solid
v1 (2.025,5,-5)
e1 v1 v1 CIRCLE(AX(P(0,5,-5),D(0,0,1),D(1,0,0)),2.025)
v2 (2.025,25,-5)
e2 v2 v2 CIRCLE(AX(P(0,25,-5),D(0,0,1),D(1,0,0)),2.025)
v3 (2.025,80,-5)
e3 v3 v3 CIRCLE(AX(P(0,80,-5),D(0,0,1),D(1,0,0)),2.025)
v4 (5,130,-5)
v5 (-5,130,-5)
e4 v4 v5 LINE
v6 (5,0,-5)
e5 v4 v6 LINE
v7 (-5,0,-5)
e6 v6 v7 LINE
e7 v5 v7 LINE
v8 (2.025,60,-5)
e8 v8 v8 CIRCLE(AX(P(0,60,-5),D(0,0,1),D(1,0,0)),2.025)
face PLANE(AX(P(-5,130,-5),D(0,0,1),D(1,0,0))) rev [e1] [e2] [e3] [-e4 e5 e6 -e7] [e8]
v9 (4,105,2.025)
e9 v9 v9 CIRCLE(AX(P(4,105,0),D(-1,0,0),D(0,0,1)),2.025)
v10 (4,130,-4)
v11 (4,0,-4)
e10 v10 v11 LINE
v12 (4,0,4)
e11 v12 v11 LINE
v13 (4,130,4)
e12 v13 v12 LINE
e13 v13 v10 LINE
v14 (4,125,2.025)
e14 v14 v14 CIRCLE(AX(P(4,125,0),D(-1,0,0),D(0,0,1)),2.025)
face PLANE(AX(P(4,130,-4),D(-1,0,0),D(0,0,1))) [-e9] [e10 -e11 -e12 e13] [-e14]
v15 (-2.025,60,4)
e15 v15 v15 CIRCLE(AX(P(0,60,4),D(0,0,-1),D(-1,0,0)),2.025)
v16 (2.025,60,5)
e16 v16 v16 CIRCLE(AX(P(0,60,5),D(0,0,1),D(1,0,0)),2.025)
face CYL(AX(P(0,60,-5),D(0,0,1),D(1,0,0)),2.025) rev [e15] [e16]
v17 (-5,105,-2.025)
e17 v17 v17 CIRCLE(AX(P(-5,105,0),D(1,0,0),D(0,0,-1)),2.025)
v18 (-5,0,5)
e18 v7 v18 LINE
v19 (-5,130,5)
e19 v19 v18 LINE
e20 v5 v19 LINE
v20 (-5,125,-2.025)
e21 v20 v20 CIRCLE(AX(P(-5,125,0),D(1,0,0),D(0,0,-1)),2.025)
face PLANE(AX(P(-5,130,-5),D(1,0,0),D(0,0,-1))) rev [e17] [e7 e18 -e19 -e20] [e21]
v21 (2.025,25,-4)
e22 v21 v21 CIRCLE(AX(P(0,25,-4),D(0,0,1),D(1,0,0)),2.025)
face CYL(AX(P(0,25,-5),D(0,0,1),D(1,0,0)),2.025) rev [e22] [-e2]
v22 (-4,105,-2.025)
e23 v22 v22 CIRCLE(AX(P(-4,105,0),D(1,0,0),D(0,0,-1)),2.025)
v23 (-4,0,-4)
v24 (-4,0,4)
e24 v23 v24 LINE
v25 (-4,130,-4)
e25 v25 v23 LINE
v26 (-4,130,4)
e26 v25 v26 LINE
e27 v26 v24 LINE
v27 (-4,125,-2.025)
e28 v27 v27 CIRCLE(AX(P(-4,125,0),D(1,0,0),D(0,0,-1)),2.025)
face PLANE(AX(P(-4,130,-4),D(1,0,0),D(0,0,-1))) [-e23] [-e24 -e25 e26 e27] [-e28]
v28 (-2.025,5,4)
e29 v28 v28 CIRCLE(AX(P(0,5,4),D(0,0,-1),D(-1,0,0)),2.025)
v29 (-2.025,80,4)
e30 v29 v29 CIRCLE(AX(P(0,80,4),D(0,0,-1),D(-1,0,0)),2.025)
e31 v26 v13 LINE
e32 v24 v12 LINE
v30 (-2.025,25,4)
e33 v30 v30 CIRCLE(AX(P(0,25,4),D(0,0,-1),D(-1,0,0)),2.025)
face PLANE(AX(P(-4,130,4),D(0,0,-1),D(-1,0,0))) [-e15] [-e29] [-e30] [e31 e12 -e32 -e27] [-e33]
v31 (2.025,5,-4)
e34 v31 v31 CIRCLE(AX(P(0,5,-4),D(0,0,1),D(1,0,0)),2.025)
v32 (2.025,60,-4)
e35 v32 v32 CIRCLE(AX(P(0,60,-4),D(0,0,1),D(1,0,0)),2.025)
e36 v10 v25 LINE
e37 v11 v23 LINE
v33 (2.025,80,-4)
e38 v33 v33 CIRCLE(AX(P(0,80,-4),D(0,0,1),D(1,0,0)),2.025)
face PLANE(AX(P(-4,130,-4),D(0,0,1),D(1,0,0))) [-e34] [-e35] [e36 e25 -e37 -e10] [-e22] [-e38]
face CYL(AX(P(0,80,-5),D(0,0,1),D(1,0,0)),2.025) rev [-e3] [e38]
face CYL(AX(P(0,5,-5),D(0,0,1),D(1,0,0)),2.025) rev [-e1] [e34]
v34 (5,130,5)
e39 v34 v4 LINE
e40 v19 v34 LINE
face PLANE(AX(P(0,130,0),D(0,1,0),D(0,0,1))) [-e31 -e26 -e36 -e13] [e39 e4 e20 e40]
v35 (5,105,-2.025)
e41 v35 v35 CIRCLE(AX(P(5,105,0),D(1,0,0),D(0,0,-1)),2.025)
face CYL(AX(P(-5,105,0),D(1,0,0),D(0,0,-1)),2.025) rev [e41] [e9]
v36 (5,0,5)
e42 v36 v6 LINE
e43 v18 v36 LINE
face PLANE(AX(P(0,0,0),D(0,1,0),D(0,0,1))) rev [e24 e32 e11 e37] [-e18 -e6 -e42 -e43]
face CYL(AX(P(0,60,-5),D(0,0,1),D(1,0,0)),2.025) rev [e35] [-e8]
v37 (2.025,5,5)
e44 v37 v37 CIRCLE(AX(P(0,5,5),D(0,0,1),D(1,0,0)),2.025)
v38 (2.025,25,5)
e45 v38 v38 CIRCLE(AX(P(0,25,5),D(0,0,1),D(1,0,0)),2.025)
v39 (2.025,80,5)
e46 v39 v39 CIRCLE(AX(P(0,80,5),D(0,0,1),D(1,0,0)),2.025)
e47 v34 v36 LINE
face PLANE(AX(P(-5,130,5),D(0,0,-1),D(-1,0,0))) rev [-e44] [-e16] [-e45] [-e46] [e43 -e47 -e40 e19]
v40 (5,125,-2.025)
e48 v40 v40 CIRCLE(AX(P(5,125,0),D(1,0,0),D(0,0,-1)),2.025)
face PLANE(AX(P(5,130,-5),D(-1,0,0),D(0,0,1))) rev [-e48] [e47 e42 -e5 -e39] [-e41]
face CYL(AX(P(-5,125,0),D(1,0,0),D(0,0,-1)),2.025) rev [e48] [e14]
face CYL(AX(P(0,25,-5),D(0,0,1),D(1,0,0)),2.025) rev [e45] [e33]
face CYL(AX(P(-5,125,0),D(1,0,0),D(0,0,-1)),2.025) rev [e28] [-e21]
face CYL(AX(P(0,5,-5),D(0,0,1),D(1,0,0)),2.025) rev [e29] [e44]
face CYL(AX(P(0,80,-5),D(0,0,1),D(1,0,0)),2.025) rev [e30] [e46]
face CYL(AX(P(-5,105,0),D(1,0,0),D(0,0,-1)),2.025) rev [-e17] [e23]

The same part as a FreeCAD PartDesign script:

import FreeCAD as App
import Part
import Sketcher

V = App.Vector
Q = App.Units.Quantity


def add_polygon(sketch, points):
    """Adds a closed chain of lines whose ends are joined by coincident constraints."""
    first, n = sketch.GeometryCount, len(points)
    for a, b in zip(points, points[1:] + points[:1]):
        sketch.addGeometry(Part.LineSegment(App.Vector(*a, 0), App.Vector(*b, 0)), False)
    for i in range(n):
        sketch.addConstraint(Sketcher.Constraint("Coincident", first + i, 2, first + (i + 1) % n, 1))

doc = App.newDocument("Part")
body = doc.addObject("PartDesign::Body", "Body")

# Sketch on XZ plane
sketch1 = body.newObject("Sketcher::SketchObject", "Sketch")
sketch1.AttachmentSupport = (doc.getObject("XZ_Plane"), [""])
sketch1.MapMode = "FlatFace"
add_polygon(sketch1, [(-5, -5), (-5, 5), (5, 5), (5, -5)])  # lines 0-3
add_polygon(sketch1, [(4, 4), (-4, 4), (-4, -4), (4, -4)])  # lines 4-7
sketch1.addConstraint(Sketcher.Constraint("Vertical", 0))
sketch1.addConstraint(Sketcher.Constraint("Horizontal", 1))
sketch1.addConstraint(Sketcher.Constraint("Vertical", 2))
sketch1.addConstraint(Sketcher.Constraint("Horizontal", 3))
sketch1.addConstraint(Sketcher.Constraint("Horizontal", 4))
sketch1.addConstraint(Sketcher.Constraint("Vertical", 5))
sketch1.addConstraint(Sketcher.Constraint("Horizontal", 6))
sketch1.addConstraint(Sketcher.Constraint("Vertical", 7))
sketch1.addConstraint(Sketcher.Constraint("Symmetric", 0, 2, 2, 2, -1, 1))
sketch1.addConstraint(Sketcher.Constraint("Symmetric", 4, 2, 6, 2, -1, 1))
sketch1.addConstraint(Sketcher.Constraint("Equal", 3, 0))
sketch1.addConstraint(Sketcher.Constraint("Equal", 6, 5))
sketch1.addConstraint(Sketcher.Constraint("DistanceX", 1, 1, 1, 2, Q("10 mm")))
sketch1.addConstraint(Sketcher.Constraint("DistanceX", 4, 2, 4, 1, Q("8 mm")))
pad1 = body.newObject("PartDesign::Pad", "Pad")
pad1.Profile = sketch1
pad1.Length = 130
pad1.Reversed = True

# Sketch on XY plane
sketch2 = body.newObject("Sketcher::SketchObject", "Sketch001")
sketch2.AttachmentSupport = (doc.getObject("XY_Plane"), [""])
sketch2.MapMode = "FlatFace"
sketch2.AttachmentOffset = App.Placement(V(0, 0, 5), App.Rotation())
sketch2.addGeometry(Part.Circle(V(0, 5, 0), V(0, 0, 1), 2), False)
sketch2.addGeometry(Part.Circle(V(0, 25, 0), V(0, 0, 1), 2), False)
sketch2.addConstraint(Sketcher.Constraint("Equal", 0, 1))
sketch2.addConstraint(Sketcher.Constraint("PointOnObject", 0, 3, -2))
sketch2.addConstraint(Sketcher.Constraint("PointOnObject", 1, 3, -2))
sketch2.addConstraint(Sketcher.Constraint("Diameter", 0, Q("4.05 mm")))
sketch2.addConstraint(Sketcher.Constraint("DistanceY", -1, 1, 0, 3, Q("5 mm")))
sketch2.addConstraint(Sketcher.Constraint("DistanceY", -1, 1, 1, 3, Q("25 mm")))
pocket1 = body.newObject("PartDesign::Pocket", "Pocket")
pocket1.Profile = sketch2
pocket1.Type = "ThroughAll"

# Sketch on YZ plane
sketch3 = body.newObject("Sketcher::SketchObject", "Sketch002")
sketch3.AttachmentSupport = (doc.getObject("YZ_Plane"), [""])
sketch3.MapMode = "FlatFace"
sketch3.AttachmentOffset = App.Placement(V(0, 0, 5), App.Rotation())
sketch3.addGeometry(Part.Circle(V(125, 0, 0), V(0, 0, 1), 2), False)
sketch3.addGeometry(Part.Circle(V(105, 0, 0), V(0, 0, 1), 2), False)
sketch3.addConstraint(Sketcher.Constraint("Equal", 0, 1))
sketch3.addConstraint(Sketcher.Constraint("PointOnObject", 0, 3, -1))
sketch3.addConstraint(Sketcher.Constraint("PointOnObject", 1, 3, -1))
sketch3.addConstraint(Sketcher.Constraint("Diameter", 0, Q("4.05 mm")))
sketch3.addConstraint(Sketcher.Constraint("DistanceX", -1, 1, 0, 3, Q("125 mm")))
sketch3.addConstraint(Sketcher.Constraint("DistanceX", -1, 1, 1, 3, Q("105 mm")))
pocket2 = body.newObject("PartDesign::Pocket", "Pocket001")
pocket2.Profile = sketch3
pocket2.Type = "ThroughAll"

# Sketch on XY plane
sketch4 = body.newObject("Sketcher::SketchObject", "Sketch003")
sketch4.AttachmentSupport = (doc.getObject("XY_Plane"), [""])
sketch4.MapMode = "FlatFace"
sketch4.AttachmentOffset = App.Placement(V(0, 0, 5), App.Rotation())
sketch4.addGeometry(Part.Circle(V(0, 60, 0), V(0, 0, 1), 2), False)
sketch4.addGeometry(Part.Circle(V(0, 80, 0), V(0, 0, 1), 2), False)
sketch4.addConstraint(Sketcher.Constraint("Equal", 0, 1))
sketch4.addConstraint(Sketcher.Constraint("PointOnObject", 0, 3, -2))
sketch4.addConstraint(Sketcher.Constraint("PointOnObject", 1, 3, -2))
sketch4.addConstraint(Sketcher.Constraint("Diameter", 0, Q("4.05 mm")))
sketch4.addConstraint(Sketcher.Constraint("DistanceY", -1, 1, 0, 3, Q("60 mm")))
sketch4.addConstraint(Sketcher.Constraint("DistanceY", -1, 1, 1, 3, Q("80 mm")))
pocket3 = body.newObject("PartDesign::Pocket", "Pocket002")
pocket3.Profile = sketch4
pocket3.Type = "ThroughAll"

doc.recompute()
